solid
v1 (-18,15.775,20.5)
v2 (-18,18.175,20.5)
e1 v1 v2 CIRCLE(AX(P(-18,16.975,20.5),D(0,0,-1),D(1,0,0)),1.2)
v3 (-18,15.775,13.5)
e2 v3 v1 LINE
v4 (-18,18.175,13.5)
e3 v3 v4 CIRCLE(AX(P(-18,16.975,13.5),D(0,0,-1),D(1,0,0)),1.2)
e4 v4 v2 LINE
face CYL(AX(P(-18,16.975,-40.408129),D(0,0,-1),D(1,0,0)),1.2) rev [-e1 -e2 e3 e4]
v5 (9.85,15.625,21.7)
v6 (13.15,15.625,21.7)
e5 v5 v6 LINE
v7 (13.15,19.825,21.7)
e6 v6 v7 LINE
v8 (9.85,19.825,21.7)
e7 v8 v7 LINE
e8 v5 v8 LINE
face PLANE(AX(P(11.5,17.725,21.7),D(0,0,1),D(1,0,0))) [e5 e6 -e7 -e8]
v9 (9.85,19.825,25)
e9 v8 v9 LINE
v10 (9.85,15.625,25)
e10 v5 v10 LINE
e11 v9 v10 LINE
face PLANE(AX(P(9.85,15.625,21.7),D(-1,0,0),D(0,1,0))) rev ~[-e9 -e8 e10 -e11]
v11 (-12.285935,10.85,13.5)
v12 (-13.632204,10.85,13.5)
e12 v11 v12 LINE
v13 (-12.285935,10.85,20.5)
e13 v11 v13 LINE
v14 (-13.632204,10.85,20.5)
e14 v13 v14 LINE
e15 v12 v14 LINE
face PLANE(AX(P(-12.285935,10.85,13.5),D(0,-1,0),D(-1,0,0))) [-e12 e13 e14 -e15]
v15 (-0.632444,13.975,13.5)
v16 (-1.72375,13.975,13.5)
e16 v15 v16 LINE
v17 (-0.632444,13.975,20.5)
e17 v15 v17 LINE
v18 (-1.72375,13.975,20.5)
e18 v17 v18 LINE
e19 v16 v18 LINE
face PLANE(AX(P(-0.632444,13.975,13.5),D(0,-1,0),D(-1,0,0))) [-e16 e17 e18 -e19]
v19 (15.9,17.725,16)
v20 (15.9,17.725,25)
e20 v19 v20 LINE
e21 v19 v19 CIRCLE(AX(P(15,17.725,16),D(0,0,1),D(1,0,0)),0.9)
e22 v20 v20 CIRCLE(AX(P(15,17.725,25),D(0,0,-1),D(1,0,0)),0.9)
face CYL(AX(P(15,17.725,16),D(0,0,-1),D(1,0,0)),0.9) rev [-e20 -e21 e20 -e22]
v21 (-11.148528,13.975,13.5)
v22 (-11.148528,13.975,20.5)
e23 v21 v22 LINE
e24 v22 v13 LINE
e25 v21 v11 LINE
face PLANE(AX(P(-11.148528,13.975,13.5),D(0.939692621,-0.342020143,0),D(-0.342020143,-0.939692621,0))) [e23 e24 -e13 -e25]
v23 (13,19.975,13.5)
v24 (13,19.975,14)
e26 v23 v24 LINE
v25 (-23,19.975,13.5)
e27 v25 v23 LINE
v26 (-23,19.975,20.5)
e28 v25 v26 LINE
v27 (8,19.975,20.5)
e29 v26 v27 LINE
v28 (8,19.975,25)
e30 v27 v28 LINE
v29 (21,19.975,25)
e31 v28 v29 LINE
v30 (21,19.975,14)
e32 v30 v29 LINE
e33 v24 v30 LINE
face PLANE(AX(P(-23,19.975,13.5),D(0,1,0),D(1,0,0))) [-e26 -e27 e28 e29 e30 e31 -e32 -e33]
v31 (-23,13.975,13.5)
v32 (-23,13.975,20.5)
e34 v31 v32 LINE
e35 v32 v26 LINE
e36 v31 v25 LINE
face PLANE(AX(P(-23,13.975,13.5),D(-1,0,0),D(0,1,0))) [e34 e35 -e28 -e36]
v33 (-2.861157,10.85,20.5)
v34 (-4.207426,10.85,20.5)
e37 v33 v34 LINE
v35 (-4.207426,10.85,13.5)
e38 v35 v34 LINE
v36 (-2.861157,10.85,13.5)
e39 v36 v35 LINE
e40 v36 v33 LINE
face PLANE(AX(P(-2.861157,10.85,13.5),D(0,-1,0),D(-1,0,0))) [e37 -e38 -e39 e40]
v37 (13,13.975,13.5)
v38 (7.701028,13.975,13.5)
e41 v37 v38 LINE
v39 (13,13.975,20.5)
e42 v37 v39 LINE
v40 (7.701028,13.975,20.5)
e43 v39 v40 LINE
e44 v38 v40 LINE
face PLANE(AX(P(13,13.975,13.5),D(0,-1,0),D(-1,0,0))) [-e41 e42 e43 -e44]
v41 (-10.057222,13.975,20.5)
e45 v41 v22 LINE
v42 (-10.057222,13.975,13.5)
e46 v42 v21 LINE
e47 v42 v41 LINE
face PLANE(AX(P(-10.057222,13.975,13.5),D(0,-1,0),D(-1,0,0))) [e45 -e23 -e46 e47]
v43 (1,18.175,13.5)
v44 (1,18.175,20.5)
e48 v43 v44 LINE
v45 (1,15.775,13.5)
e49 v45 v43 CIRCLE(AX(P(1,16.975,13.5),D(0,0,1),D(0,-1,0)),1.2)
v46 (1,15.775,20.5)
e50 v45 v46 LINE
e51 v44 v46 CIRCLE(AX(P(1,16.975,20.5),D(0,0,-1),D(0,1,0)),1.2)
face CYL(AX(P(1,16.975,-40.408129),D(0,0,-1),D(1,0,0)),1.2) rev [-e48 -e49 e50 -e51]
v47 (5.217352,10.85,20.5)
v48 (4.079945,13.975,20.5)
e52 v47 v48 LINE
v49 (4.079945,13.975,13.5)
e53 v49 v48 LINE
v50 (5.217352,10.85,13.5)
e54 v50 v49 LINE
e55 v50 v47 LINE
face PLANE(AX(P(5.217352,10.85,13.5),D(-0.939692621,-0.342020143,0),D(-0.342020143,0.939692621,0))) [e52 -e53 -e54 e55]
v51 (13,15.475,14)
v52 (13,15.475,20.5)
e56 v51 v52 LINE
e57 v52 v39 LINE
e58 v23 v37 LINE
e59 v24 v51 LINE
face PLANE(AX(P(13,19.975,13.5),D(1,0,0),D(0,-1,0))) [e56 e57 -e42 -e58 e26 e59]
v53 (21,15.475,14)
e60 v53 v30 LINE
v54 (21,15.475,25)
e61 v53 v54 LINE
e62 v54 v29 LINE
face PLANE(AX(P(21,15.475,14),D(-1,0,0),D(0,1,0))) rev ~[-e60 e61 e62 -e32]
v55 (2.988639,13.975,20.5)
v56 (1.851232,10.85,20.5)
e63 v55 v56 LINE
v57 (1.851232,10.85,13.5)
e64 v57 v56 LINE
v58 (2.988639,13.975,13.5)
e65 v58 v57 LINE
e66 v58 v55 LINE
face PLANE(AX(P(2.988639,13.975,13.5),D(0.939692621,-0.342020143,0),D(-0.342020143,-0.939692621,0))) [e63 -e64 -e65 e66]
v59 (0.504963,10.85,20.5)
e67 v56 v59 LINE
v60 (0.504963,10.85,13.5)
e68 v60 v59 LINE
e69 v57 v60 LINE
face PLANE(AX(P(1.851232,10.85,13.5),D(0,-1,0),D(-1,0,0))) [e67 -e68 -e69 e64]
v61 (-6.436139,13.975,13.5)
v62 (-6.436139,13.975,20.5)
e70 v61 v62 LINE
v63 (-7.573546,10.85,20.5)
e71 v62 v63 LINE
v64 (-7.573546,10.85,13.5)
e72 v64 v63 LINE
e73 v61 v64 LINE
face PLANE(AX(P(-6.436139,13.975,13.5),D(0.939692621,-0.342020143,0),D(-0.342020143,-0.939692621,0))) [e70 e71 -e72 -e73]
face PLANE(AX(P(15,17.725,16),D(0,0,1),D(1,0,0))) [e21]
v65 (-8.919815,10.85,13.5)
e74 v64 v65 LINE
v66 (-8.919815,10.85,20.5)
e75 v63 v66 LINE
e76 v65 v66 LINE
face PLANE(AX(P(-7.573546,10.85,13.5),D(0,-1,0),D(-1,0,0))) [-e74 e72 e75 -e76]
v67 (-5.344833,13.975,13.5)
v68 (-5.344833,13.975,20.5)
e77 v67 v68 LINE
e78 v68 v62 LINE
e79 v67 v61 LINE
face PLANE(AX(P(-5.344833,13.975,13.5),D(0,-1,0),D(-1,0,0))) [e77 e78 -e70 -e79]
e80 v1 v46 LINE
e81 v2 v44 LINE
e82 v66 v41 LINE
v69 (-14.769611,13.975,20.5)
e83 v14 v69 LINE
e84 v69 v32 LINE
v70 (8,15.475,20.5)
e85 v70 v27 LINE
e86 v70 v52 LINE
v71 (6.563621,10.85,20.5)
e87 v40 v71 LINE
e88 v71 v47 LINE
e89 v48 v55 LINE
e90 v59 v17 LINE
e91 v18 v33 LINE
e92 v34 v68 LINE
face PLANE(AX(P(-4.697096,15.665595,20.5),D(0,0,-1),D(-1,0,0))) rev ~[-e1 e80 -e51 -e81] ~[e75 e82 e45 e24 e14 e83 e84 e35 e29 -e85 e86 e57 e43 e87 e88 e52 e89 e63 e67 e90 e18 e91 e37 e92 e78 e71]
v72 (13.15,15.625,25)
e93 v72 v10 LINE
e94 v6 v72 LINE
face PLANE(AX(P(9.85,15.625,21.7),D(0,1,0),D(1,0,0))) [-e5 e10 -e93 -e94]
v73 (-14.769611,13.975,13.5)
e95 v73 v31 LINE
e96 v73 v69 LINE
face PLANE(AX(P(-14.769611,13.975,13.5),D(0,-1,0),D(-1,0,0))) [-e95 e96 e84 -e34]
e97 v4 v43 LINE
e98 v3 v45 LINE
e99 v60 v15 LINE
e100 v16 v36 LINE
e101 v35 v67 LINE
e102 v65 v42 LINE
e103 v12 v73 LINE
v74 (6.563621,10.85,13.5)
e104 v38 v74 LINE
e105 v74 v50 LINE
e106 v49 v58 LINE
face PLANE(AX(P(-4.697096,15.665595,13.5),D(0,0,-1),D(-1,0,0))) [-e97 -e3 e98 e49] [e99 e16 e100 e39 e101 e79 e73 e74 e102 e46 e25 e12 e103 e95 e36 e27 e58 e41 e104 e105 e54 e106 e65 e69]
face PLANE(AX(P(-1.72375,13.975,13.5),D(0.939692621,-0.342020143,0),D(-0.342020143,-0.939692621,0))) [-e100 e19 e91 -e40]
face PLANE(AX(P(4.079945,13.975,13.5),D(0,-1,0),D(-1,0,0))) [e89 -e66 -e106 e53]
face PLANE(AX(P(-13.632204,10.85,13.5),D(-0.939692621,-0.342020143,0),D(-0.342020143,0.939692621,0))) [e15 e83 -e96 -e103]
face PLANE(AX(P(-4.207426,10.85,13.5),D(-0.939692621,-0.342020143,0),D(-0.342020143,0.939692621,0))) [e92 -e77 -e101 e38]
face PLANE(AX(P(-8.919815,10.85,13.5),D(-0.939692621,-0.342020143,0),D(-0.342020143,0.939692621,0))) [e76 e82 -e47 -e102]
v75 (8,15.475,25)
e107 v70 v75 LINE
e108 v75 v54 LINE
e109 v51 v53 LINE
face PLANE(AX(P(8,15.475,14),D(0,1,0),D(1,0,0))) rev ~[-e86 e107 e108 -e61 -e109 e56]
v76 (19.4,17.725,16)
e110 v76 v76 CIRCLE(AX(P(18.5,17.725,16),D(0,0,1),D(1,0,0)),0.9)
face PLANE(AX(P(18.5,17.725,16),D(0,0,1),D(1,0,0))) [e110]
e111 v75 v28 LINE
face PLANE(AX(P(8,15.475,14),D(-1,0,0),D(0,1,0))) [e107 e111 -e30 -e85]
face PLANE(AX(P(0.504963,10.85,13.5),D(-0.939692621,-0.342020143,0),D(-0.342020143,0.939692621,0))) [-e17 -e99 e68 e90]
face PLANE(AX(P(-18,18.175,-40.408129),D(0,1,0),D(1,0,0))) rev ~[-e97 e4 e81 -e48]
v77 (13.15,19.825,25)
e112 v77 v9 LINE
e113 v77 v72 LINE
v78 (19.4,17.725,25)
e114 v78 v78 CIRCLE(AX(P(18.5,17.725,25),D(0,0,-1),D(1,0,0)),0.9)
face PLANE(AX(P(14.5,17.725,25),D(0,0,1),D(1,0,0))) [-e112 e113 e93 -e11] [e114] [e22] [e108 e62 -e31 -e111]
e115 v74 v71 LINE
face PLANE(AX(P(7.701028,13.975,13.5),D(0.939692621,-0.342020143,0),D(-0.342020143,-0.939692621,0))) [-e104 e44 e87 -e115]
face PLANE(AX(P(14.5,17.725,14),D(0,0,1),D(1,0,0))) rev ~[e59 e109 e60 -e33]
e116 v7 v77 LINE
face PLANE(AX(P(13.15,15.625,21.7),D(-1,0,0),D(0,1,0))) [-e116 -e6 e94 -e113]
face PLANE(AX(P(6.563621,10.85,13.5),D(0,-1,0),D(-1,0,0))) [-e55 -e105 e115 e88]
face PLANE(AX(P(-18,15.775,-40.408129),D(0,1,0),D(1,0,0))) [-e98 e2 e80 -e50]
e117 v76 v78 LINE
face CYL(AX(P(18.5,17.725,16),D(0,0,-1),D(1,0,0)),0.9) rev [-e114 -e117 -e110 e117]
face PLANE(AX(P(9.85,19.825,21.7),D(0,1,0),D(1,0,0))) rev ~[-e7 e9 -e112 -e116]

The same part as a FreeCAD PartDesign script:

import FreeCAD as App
import Part
import Sketcher
from FreeCAD import Vector
Q = App.Units.Quantity

doc = App.newDocument("Part")
body = doc.addObject("PartDesign::Body", "Body")

sketch1 = body.newObject("Sketcher::SketchObject", "Sketch")
sketch1.AttachmentSupport = (doc.getObject("XY_Plane"), [""])
sketch1.MapMode = "FlatFace"
sketch1.AttachmentOffset = App.Placement(Vector(0, 0, 13.5), App.Rotation())
sketch1.addGeometry(Part.LineSegment(Vector(13, 19.975, 0), Vector(-23, 19.975, 0)), False)
sketch1.addGeometry(Part.LineSegment(Vector(-23, 19.975, 0), Vector(-23, 13.975, 0)), False)
sketch1.addGeometry(Part.LineSegment(Vector(-23, 13.975, 0), Vector(-14.769611, 13.975, 0)), False)
sketch1.addGeometry(Part.LineSegment(Vector(-14.769611, 13.975, 0), Vector(-13.632204, 10.85, 0)), False)
sketch1.addGeometry(Part.LineSegment(Vector(-13.632204, 10.85, 0), Vector(-12.285935, 10.85, 0)), False)
sketch1.addGeometry(Part.LineSegment(Vector(-12.285935, 10.85, 0), Vector(-11.148528, 13.975, 0)), False)
sketch1.addGeometry(Part.LineSegment(Vector(-11.148528, 13.975, 0), Vector(-10.057222, 13.975, 0)), False)
sketch1.addGeometry(Part.LineSegment(Vector(-10.057222, 13.975, 0), Vector(-8.919815, 10.85, 0)), False)
sketch1.addGeometry(Part.LineSegment(Vector(-8.919815, 10.85, 0), Vector(-7.573546, 10.85, 0)), False)
sketch1.addGeometry(Part.LineSegment(Vector(-7.573546, 10.85, 0), Vector(-6.436139, 13.975, 0)), False)
sketch1.addGeometry(Part.LineSegment(Vector(-6.436139, 13.975, 0), Vector(-5.344833, 13.975, 0)), False)
sketch1.addGeometry(Part.LineSegment(Vector(-5.344833, 13.975, 0), Vector(-4.207426, 10.85, 0)), False)
sketch1.addGeometry(Part.LineSegment(Vector(-4.207426, 10.85, 0), Vector(-2.861157, 10.85, 0)), False)
sketch1.addGeometry(Part.LineSegment(Vector(-2.861157, 10.85, 0), Vector(-1.72375, 13.975, 0)), False)
sketch1.addGeometry(Part.LineSegment(Vector(-1.72375, 13.975, 0), Vector(-0.632444, 13.975, 0)), False)
sketch1.addGeometry(Part.LineSegment(Vector(-0.632444, 13.975, 0), Vector(0.504963, 10.85, 0)), False)
sketch1.addGeometry(Part.LineSegment(Vector(0.504963, 10.85, 0), Vector(1.851232, 10.85, 0)), False)
sketch1.addGeometry(Part.LineSegment(Vector(1.851232, 10.85, 0), Vector(2.988639, 13.975, 0)), False)
sketch1.addGeometry(Part.LineSegment(Vector(2.988639, 13.975, 0), Vector(4.079945, 13.975, 0)), False)
sketch1.addGeometry(Part.LineSegment(Vector(4.079945, 13.975, 0), Vector(5.217352, 10.85, 0)), False)
sketch1.addGeometry(Part.LineSegment(Vector(5.217352, 10.85, 0), Vector(6.563621, 10.85, 0)), False)
sketch1.addGeometry(Part.LineSegment(Vector(6.563621, 10.85, 0), Vector(7.701028, 13.975, 0)), False)
sketch1.addGeometry(Part.LineSegment(Vector(7.701028, 13.975, 0), Vector(13, 13.975, 0)), False)
sketch1.addGeometry(Part.LineSegment(Vector(13, 13.975, 0), Vector(13, 19.975, 0)), False)
sketch1.addConstraint(Sketcher.Constraint("Coincident", 0, 2, 1, 1))
sketch1.addConstraint(Sketcher.Constraint("Coincident", 1, 2, 2, 1))
sketch1.addConstraint(Sketcher.Constraint("Coincident", 2, 2, 3, 1))
sketch1.addConstraint(Sketcher.Constraint("Coincident", 3, 2, 4, 1))
sketch1.addConstraint(Sketcher.Constraint("Coincident", 4, 2, 5, 1))
sketch1.addConstraint(Sketcher.Constraint("Coincident", 5, 2, 6, 1))
sketch1.addConstraint(Sketcher.Constraint("Coincident", 6, 2, 7, 1))
sketch1.addConstraint(Sketcher.Constraint("Coincident", 7, 2, 8, 1))
sketch1.addConstraint(Sketcher.Constraint("Coincident", 8, 2, 9, 1))
sketch1.addConstraint(Sketcher.Constraint("Coincident", 9, 2, 10, 1))
sketch1.addConstraint(Sketcher.Constraint("Coincident", 10, 2, 11, 1))
sketch1.addConstraint(Sketcher.Constraint("Coincident", 11, 2, 12, 1))
sketch1.addConstraint(Sketcher.Constraint("Coincident", 12, 2, 13, 1))
sketch1.addConstraint(Sketcher.Constraint("Coincident", 13, 2, 14, 1))
sketch1.addConstraint(Sketcher.Constraint("Coincident", 14, 2, 15, 1))
sketch1.addConstraint(Sketcher.Constraint("Coincident", 15, 2, 16, 1))
sketch1.addConstraint(Sketcher.Constraint("Coincident", 16, 2, 17, 1))
sketch1.addConstraint(Sketcher.Constraint("Coincident", 17, 2, 18, 1))
sketch1.addConstraint(Sketcher.Constraint("Coincident", 18, 2, 19, 1))
sketch1.addConstraint(Sketcher.Constraint("Coincident", 19, 2, 20, 1))
sketch1.addConstraint(Sketcher.Constraint("Coincident", 20, 2, 21, 1))
sketch1.addConstraint(Sketcher.Constraint("Coincident", 21, 2, 22, 1))
sketch1.addConstraint(Sketcher.Constraint("Coincident", 22, 2, 23, 1))
sketch1.addConstraint(Sketcher.Constraint("Coincident", 23, 2, 0, 1))
sketch1.addConstraint(Sketcher.Constraint("Horizontal", 0))
sketch1.addConstraint(Sketcher.Constraint("Vertical", 1))
sketch1.addConstraint(Sketcher.Constraint("Horizontal", 2))
sketch1.addConstraint(Sketcher.Constraint("Horizontal", 4))
sketch1.addConstraint(Sketcher.Constraint("Horizontal", 6))
sketch1.addConstraint(Sketcher.Constraint("Horizontal", 8))
sketch1.addConstraint(Sketcher.Constraint("Horizontal", 10))
sketch1.addConstraint(Sketcher.Constraint("Horizontal", 12))
sketch1.addConstraint(Sketcher.Constraint("Horizontal", 14))
sketch1.addConstraint(Sketcher.Constraint("Horizontal", 16))
sketch1.addConstraint(Sketcher.Constraint("Horizontal", 18))
sketch1.addConstraint(Sketcher.Constraint("Horizontal", 20))
sketch1.addConstraint(Sketcher.Constraint("Horizontal", 22))
sketch1.addConstraint(Sketcher.Constraint("Vertical", 23))
sketch1.addConstraint(Sketcher.Constraint("Parallel", 3, 7))
sketch1.addConstraint(Sketcher.Constraint("Parallel", 5, 9))
sketch1.addConstraint(Sketcher.Constraint("Parallel", 7, 11))
sketch1.addConstraint(Sketcher.Constraint("Parallel", 9, 13))
sketch1.addConstraint(Sketcher.Constraint("Parallel", 11, 15))
sketch1.addConstraint(Sketcher.Constraint("Parallel", 13, 17))
sketch1.addConstraint(Sketcher.Constraint("Parallel", 15, 19))
sketch1.addConstraint(Sketcher.Constraint("Parallel", 17, 21))
sketch1.addConstraint(Sketcher.Constraint("Horizontal", 2, 2, 5, 2))
sketch1.addConstraint(Sketcher.Constraint("Horizontal", 4, 2, 7, 2))
sketch1.addConstraint(Sketcher.Constraint("Horizontal", 6, 2, 9, 2))
sketch1.addConstraint(Sketcher.Constraint("Horizontal", 8, 2, 11, 2))
sketch1.addConstraint(Sketcher.Constraint("Horizontal", 10, 2, 13, 2))
sketch1.addConstraint(Sketcher.Constraint("Horizontal", 12, 2, 15, 2))
sketch1.addConstraint(Sketcher.Constraint("Horizontal", 14, 2, 17, 2))
sketch1.addConstraint(Sketcher.Constraint("Horizontal", 16, 2, 19, 2))
sketch1.addConstraint(Sketcher.Constraint("Horizontal", 18, 2, 21, 2))
sketch1.addConstraint(Sketcher.Constraint("Equal", 4, 8))
sketch1.addConstraint(Sketcher.Constraint("Equal", 6, 10))
sketch1.addConstraint(Sketcher.Constraint("Equal", 8, 12))
sketch1.addConstraint(Sketcher.Constraint("Equal", 10, 14))
sketch1.addConstraint(Sketcher.Constraint("Equal", 12, 16))
sketch1.addConstraint(Sketcher.Constraint("Equal", 14, 18))
sketch1.addConstraint(Sketcher.Constraint("Equal", 16, 20))
sketch1.addConstraint(Sketcher.Constraint("Equal", 3, 5))
sketch1.addConstraint(Sketcher.Constraint("DistanceX", 0, 2, 0, 1, 36.0))
sketch1.addConstraint(Sketcher.Constraint("DistanceY", 1, 2, 1, 1, 6.0))
sketch1.addConstraint(Sketcher.Constraint("Angle", 3, Q("-70 deg")))
sketch1.addConstraint(Sketcher.Constraint("DistanceX", 0, 2, -1, 1, 23.0))
sketch1.addConstraint(Sketcher.Constraint("DistanceY", -1, 1, 3, 2, 10.85))
sketch1.addConstraint(Sketcher.Constraint("DistanceY", -1, 1, 0, 2, 19.975))
sketch1.addConstraint(Sketcher.Constraint("DistanceX", 2, 1, 2, 2, 8.230389))
sketch1.addConstraint(Sketcher.Constraint("DistanceX", 4, 1, 4, 2, 1.346269))
sketch1.addConstraint(Sketcher.Constraint("DistanceX", 6, 1, 6, 2, 1.091306))
pad1 = body.newObject("PartDesign::Pad", "Pad")
pad1.Profile = sketch1
pad1.Length = 7

sketch2 = body.newObject("Sketcher::SketchObject", "Sketch001")
sketch2.AttachmentSupport = (doc.getObject("XY_Plane"), [""])
sketch2.MapMode = "FlatFace"
sketch2.AttachmentOffset = App.Placement(Vector(0, 0, 14), App.Rotation())
sketch2.addGeometry(Part.LineSegment(Vector(8, 19.975, 0), Vector(8, 15.475, 0)), False)
sketch2.addGeometry(Part.LineSegment(Vector(8, 15.475, 0), Vector(21, 15.475, 0)), False)
sketch2.addGeometry(Part.LineSegment(Vector(21, 15.475, 0), Vector(21, 19.975, 0)), False)
sketch2.addGeometry(Part.LineSegment(Vector(21, 19.975, 0), Vector(8, 19.975, 0)), False)
sketch2.addConstraint(Sketcher.Constraint("Coincident", 0, 2, 1, 1))
sketch2.addConstraint(Sketcher.Constraint("Coincident", 1, 2, 2, 1))
sketch2.addConstraint(Sketcher.Constraint("Coincident", 2, 2, 3, 1))
sketch2.addConstraint(Sketcher.Constraint("Coincident", 3, 2, 0, 1))
sketch2.addConstraint(Sketcher.Constraint("Vertical", 0))
sketch2.addConstraint(Sketcher.Constraint("Horizontal", 1))
sketch2.addConstraint(Sketcher.Constraint("Vertical", 2))
sketch2.addConstraint(Sketcher.Constraint("Horizontal", 3))
sketch2.addConstraint(Sketcher.Constraint("DistanceX", 1, 1, 1, 2, 13.0))
sketch2.addConstraint(Sketcher.Constraint("DistanceY", 0, 2, 0, 1, 4.5))
sketch2.addConstraint(Sketcher.Constraint("DistanceX", -1, 1, 0, 2, 8.0))
sketch2.addConstraint(Sketcher.Constraint("DistanceY", -1, 1, 0, 2, 15.475))
pad2 = body.newObject("PartDesign::Pad", "Pad001")
pad2.Profile = sketch2
pad2.Length = 11

sketch3 = body.newObject("Sketcher::SketchObject", "Sketch002")
sketch3.AttachmentSupport = (doc.getObject("XY_Plane"), [""])
sketch3.MapMode = "FlatFace"
sketch3.AttachmentOffset = App.Placement(Vector(0, 0, 21.7), App.Rotation())
sketch3.addGeometry(Part.LineSegment(Vector(9.85, 19.825, 0), Vector(9.85, 15.625, 0)), False)
sketch3.addGeometry(Part.LineSegment(Vector(9.85, 15.625, 0), Vector(13.15, 15.625, 0)), False)
sketch3.addGeometry(Part.LineSegment(Vector(13.15, 15.625, 0), Vector(13.15, 19.825, 0)), False)
sketch3.addGeometry(Part.LineSegment(Vector(13.15, 19.825, 0), Vector(9.85, 19.825, 0)), False)
sketch3.addConstraint(Sketcher.Constraint("Coincident", 0, 2, 1, 1))
sketch3.addConstraint(Sketcher.Constraint("Coincident", 1, 2, 2, 1))
sketch3.addConstraint(Sketcher.Constraint("Coincident", 2, 2, 3, 1))
sketch3.addConstraint(Sketcher.Constraint("Coincident", 3, 2, 0, 1))
sketch3.addConstraint(Sketcher.Constraint("Vertical", 0))
sketch3.addConstraint(Sketcher.Constraint("Horizontal", 1))
sketch3.addConstraint(Sketcher.Constraint("Vertical", 2))
sketch3.addConstraint(Sketcher.Constraint("Horizontal", 3))
sketch3.addConstraint(Sketcher.Constraint("DistanceX", 1, 1, 1, 2, 3.3))
sketch3.addConstraint(Sketcher.Constraint("DistanceY", 0, 2, 0, 1, 4.2))
sketch3.addConstraint(Sketcher.Constraint("DistanceX", -1, 1, 0, 2, 9.85))
sketch3.addConstraint(Sketcher.Constraint("DistanceY", -1, 1, 0, 2, 15.625))
pocket1 = body.newObject("PartDesign::Pocket", "Pocket")
pocket1.Profile = sketch3
pocket1.Length = 3.4
pocket1.Reversed = True

sketch4 = body.newObject("Sketcher::SketchObject", "Sketch003")
sketch4.AttachmentSupport = (doc.getObject("XY_Plane"), [""])
sketch4.MapMode = "FlatFace"
sketch4.AttachmentOffset = App.Placement(Vector(0, 0, 16), App.Rotation())
sketch4.addGeometry(Part.Circle(Vector(15, 17.725, 0), Vector(0, 0, 1), 0.9), False)
sketch4.addGeometry(Part.Circle(Vector(18.5, 17.725, 0), Vector(0, 0, 1), 0.9), False)
sketch4.addConstraint(Sketcher.Constraint("Equal", 0, 1))
sketch4.addConstraint(Sketcher.Constraint("Horizontal", 0, 3, 1, 3))
sketch4.addConstraint(Sketcher.Constraint("Diameter", 0, 1.8))
sketch4.addConstraint(Sketcher.Constraint("DistanceX", -1, 1, 0, 3, 15.0))
sketch4.addConstraint(Sketcher.Constraint("DistanceX", -1, 1, 1, 3, 18.5))
sketch4.addConstraint(Sketcher.Constraint("DistanceY", -1, 1, 0, 3, 17.725))
pocket2 = body.newObject("PartDesign::Pocket", "Pocket001")
pocket2.Profile = sketch4
pocket2.Length = 9.1
pocket2.Reversed = True

sketch5 = body.newObject("Sketcher::SketchObject", "Sketch004")
sketch5.AttachmentSupport = (doc.getObject("XY_Plane"), [""])
sketch5.MapMode = "FlatFace"
sketch5.addGeometry(Part.LineSegment(Vector(-18, 18.175, 0), Vector(-18, 15.775, 0)), False)
sketch5.addGeometry(Part.LineSegment(Vector(-18, 15.775, 0), Vector(1, 15.775, 0)), False)
sketch5.addGeometry(Part.LineSegment(Vector(1, 15.775, 0), Vector(1, 18.175, 0)), False)
sketch5.addGeometry(Part.LineSegment(Vector(1, 18.175, 0), Vector(-18, 18.175, 0)), False)
sketch5.addConstraint(Sketcher.Constraint("Coincident", 0, 2, 1, 1))
sketch5.addConstraint(Sketcher.Constraint("Coincident", 1, 2, 2, 1))
sketch5.addConstraint(Sketcher.Constraint("Coincident", 2, 2, 3, 1))
sketch5.addConstraint(Sketcher.Constraint("Coincident", 3, 2, 0, 1))
sketch5.addConstraint(Sketcher.Constraint("Vertical", 0))
sketch5.addConstraint(Sketcher.Constraint("Horizontal", 1))
sketch5.addConstraint(Sketcher.Constraint("Vertical", 2))
sketch5.addConstraint(Sketcher.Constraint("Horizontal", 3))
sketch5.addConstraint(Sketcher.Constraint("DistanceX", 1, 1, 1, 2, 19.0))
sketch5.addConstraint(Sketcher.Constraint("DistanceY", 0, 2, 0, 1, 2.4))
sketch5.addConstraint(Sketcher.Constraint("DistanceX", 0, 2, -1, 1, 18.0))
sketch5.addConstraint(Sketcher.Constraint("DistanceY", -1, 1, 0, 2, 15.775))
pocket3 = body.newObject("PartDesign::Pocket", "Pocket002")
pocket3.Profile = sketch5
pocket3.Type = "ThroughAll"
pocket3.Midplane = True

sketch6 = body.newObject("Sketcher::SketchObject", "Sketch005")
sketch6.AttachmentSupport = (doc.getObject("XY_Plane"), [""])
sketch6.MapMode = "FlatFace"
sketch6.addGeometry(Part.Circle(Vector(-18, 16.975, 0), Vector(0, 0, 1), 1.2), False)
sketch6.addGeometry(Part.Circle(Vector(1, 16.975, 0), Vector(0, 0, 1), 1.2), False)
sketch6.addConstraint(Sketcher.Constraint("Equal", 0, 1))
sketch6.addConstraint(Sketcher.Constraint("Horizontal", 0, 3, 1, 3))
sketch6.addConstraint(Sketcher.Constraint("Diameter", 0, 2.4))
sketch6.addConstraint(Sketcher.Constraint("DistanceX", 0, 3, -1, 1, 18.0))
sketch6.addConstraint(Sketcher.Constraint("DistanceX", -1, 1, 1, 3, 1.0))
sketch6.addConstraint(Sketcher.Constraint("DistanceY", -1, 1, 0, 3, 16.975))
pocket4 = body.newObject("PartDesign::Pocket", "Pocket003")
pocket4.Profile = sketch6
pocket4.Type = "ThroughAll"
pocket4.Midplane = True

doc.recompute()
